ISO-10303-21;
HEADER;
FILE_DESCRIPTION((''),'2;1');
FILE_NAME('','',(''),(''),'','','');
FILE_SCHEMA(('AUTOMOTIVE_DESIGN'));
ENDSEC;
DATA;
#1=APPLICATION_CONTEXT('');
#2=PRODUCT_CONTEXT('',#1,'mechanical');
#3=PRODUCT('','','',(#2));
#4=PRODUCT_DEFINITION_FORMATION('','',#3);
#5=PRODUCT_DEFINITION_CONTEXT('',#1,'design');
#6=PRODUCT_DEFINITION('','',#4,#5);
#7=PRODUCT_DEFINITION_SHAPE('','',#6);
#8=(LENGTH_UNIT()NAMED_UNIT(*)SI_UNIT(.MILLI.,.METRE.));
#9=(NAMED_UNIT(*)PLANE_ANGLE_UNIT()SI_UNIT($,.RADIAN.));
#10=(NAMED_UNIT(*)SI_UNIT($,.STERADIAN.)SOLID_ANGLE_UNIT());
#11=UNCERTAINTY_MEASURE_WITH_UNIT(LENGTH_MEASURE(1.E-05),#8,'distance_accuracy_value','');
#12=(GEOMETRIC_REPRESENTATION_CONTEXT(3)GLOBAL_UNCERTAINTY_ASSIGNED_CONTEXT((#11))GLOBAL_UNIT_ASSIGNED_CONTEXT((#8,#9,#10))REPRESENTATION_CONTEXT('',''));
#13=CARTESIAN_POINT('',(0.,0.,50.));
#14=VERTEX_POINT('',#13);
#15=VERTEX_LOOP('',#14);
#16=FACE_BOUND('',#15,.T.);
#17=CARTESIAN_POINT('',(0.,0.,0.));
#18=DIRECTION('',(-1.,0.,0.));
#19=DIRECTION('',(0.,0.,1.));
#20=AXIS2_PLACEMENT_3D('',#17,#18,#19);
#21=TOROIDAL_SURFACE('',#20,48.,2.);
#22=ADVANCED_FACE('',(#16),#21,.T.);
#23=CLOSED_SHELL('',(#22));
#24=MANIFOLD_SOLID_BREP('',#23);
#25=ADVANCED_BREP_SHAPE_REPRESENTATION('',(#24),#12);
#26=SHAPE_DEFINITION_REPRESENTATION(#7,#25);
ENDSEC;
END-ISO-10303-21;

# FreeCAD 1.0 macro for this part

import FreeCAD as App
import Part
import Sketcher

V = App.Vector
Q = App.Units.Quantity

doc = App.newDocument("Part")
body = doc.addObject("PartDesign::Body", "Body")

# Sketch on XY plane
sketch1 = body.newObject("Sketcher::SketchObject", "Sketch")
sketch1.AttachmentSupport = (doc.getObject("XY_Plane"), [""])
sketch1.MapMode = "FlatFace"
sketch1.addGeometry(Part.Circle(V(0, 48, 0), V(0, 0, 1), 2), False)
sketch1.addConstraint([
    Sketcher.Constraint("PointOnObject", 0, 3, -2),
    Sketcher.Constraint("Diameter", 0, Q("4 mm")),
    Sketcher.Constraint("DistanceY", -1, 1, 0, 3, Q("48 mm")),
])
revolution = body.newObject("PartDesign::Revolution", "Revolution")
revolution.Profile = sketch1
revolution.ReferenceAxis = (sketch1, ["H_Axis"])
revolution.Angle = 360

doc.recompute()
